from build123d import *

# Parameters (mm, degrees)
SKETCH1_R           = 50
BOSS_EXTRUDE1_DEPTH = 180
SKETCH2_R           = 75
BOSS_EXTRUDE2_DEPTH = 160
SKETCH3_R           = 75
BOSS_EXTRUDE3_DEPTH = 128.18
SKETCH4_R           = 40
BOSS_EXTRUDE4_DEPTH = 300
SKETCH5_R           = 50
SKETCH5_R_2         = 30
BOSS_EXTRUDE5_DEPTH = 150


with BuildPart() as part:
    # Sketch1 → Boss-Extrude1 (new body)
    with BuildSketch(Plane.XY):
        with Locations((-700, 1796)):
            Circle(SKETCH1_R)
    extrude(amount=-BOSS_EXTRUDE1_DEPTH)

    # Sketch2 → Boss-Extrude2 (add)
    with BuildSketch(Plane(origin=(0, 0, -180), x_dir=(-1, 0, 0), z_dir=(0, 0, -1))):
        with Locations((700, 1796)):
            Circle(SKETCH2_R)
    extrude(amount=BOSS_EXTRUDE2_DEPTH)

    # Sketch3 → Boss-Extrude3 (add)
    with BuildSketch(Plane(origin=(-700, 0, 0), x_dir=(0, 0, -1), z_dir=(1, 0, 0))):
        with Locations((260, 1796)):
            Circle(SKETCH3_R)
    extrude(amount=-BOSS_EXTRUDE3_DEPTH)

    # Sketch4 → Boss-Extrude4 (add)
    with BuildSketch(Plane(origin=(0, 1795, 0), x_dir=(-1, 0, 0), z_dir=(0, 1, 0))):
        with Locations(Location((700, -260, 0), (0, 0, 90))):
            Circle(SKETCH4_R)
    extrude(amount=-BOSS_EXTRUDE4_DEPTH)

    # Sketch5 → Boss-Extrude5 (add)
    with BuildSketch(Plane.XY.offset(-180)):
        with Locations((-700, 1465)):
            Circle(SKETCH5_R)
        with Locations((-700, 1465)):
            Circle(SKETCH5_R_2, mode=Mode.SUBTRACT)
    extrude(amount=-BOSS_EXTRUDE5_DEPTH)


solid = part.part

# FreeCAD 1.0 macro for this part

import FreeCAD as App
import Part
import Sketcher

doc = App.newDocument("Part")
params = doc.addObject("Spreadsheet::Sheet", "Params")
for row, (alias, value) in enumerate([
    ("sketch1_diameter", "100 mm"),
    ("pad1_length", "180 mm"),
    ("sketch2_diameter", "150 mm"),
    ("pad2_length", "160 mm"),
    ("sketch3_diameter", "150 mm"),
    ("pad3_length", "128.18 mm"),
    ("sketch4_diameter", "80 mm"),
    ("pad4_length", "300 mm"),
    ("sketch5_diameter", "100 mm"),
    ("sketch5_diameter2", "60 mm"),
    ("pad5_length", "150 mm"),
], start=1):
    params.set(f"A{row}", alias)
    params.set(f"B{row}", "=" + value)
    params.setAlias(f"B{row}", alias)

body = doc.addObject("PartDesign::Body", "Body")

sketch1 = body.newObject("Sketcher::SketchObject", "Sketch")
sketch1.AttachmentSupport = (doc.getObject("XY_Plane"), [""])
sketch1.MapMode = "FlatFace"
sketch1.addGeometry(Part.Circle(App.Vector(-700, 1796, 0), App.Vector(0, 0, 1), 50), False)
sketch1.addConstraint([
    Sketcher.Constraint("Diameter", 0, 100.0),
    Sketcher.Constraint("DistanceX", 0, 3, -1, 1, 700.0),
    Sketcher.Constraint("DistanceY", -1, 1, 0, 3, 1796.0),
])
sketch1.setExpression("Constraints[0]", "Params.sketch1_diameter")
pad1 = body.newObject("PartDesign::Pad", "Pad")
pad1.Profile = sketch1
pad1.setExpression("Length", "Params.pad1_length")
pad1.Reversed = True

sketch2 = body.newObject("Sketcher::SketchObject", "Sketch001")
sketch2.AttachmentSupport = (doc.getObject("XY_Plane"), [""])
sketch2.MapMode = "FlatFace"
sketch2.AttachmentOffset = App.Placement(App.Vector(0, 0, -180), App.Rotation())
sketch2.addGeometry(Part.Circle(App.Vector(-700, 1796, 0), App.Vector(0, 0, 1), 75), False)
sketch2.addConstraint([
    Sketcher.Constraint("Diameter", 0, 150.0),
    Sketcher.Constraint("DistanceX", 0, 3, -1, 1, 700.0),
    Sketcher.Constraint("DistanceY", -1, 1, 0, 3, 1796.0),
])
sketch2.setExpression("Constraints[0]", "Params.sketch2_diameter")
pad2 = body.newObject("PartDesign::Pad", "Pad001")
pad2.Profile = sketch2
pad2.setExpression("Length", "Params.pad2_length")
pad2.Reversed = True

sketch3 = body.newObject("Sketcher::SketchObject", "Sketch002")
sketch3.AttachmentSupport = (doc.getObject("YZ_Plane"), [""])
sketch3.MapMode = "FlatFace"
sketch3.AttachmentOffset = App.Placement(App.Vector(0, 0, -700), App.Rotation())
sketch3.addGeometry(Part.Circle(App.Vector(1796, -260, 0), App.Vector(0, 0, 1), 75), False)
sketch3.addConstraint([
    Sketcher.Constraint("Diameter", 0, 150.0),
    Sketcher.Constraint("DistanceX", -1, 1, 0, 3, 1796.0),
    Sketcher.Constraint("DistanceY", 0, 3, -1, 1, 260.0),
])
sketch3.setExpression("Constraints[0]", "Params.sketch3_diameter")
pad3 = body.newObject("PartDesign::Pad", "Pad002")
pad3.Profile = sketch3
pad3.setExpression("Length", "Params.pad3_length")
pad3.Reversed = True

sketch4 = body.newObject("Sketcher::SketchObject", "Sketch003")
sketch4.AttachmentSupport = (doc.getObject("XZ_Plane"), [""])
sketch4.MapMode = "FlatFace"
sketch4.AttachmentOffset = App.Placement(App.Vector(0, 0, -1795), App.Rotation())
sketch4.addGeometry(Part.Circle(App.Vector(-700, -260, 0), App.Vector(0, 0, 1), 40), False)
sketch4.addConstraint([
    Sketcher.Constraint("Diameter", 0, 80.0),
    Sketcher.Constraint("DistanceX", 0, 3, -1, 1, 700.0),
    Sketcher.Constraint("DistanceY", 0, 3, -1, 1, 260.0),
])
sketch4.setExpression("Constraints[0]", "Params.sketch4_diameter")
pad4 = body.newObject("PartDesign::Pad", "Pad003")
pad4.Profile = sketch4
pad4.setExpression("Length", "Params.pad4_length")

sketch5 = body.newObject("Sketcher::SketchObject", "Sketch004")
sketch5.AttachmentSupport = (doc.getObject("XY_Plane"), [""])
sketch5.MapMode = "FlatFace"
sketch5.AttachmentOffset = App.Placement(App.Vector(0, 0, -180), App.Rotation())
sketch5.addGeometry([
    Part.Circle(App.Vector(-700, 1465, 0), App.Vector(0, 0, 1), 50),
    Part.Circle(App.Vector(-700, 1465, 0), App.Vector(0, 0, 1), 30),
], False)
sketch5.addConstraint([
    Sketcher.Constraint("Coincident", 1, 3, 0, 3),
    Sketcher.Constraint("Diameter", 0, 100.0),
    Sketcher.Constraint("Diameter", 1, 60.0),
    Sketcher.Constraint("DistanceX", 0, 3, -1, 1, 700.0),
    Sketcher.Constraint("DistanceY", -1, 1, 0, 3, 1465.0),
])
sketch5.setExpression("Constraints[1]", "Params.sketch5_diameter")
sketch5.setExpression("Constraints[2]", "Params.sketch5_diameter2")
pad5 = body.newObject("PartDesign::Pad", "Pad004")
pad5.Profile = sketch5
pad5.setExpression("Length", "Params.pad5_length")
pad5.Reversed = True

doc.recompute()
